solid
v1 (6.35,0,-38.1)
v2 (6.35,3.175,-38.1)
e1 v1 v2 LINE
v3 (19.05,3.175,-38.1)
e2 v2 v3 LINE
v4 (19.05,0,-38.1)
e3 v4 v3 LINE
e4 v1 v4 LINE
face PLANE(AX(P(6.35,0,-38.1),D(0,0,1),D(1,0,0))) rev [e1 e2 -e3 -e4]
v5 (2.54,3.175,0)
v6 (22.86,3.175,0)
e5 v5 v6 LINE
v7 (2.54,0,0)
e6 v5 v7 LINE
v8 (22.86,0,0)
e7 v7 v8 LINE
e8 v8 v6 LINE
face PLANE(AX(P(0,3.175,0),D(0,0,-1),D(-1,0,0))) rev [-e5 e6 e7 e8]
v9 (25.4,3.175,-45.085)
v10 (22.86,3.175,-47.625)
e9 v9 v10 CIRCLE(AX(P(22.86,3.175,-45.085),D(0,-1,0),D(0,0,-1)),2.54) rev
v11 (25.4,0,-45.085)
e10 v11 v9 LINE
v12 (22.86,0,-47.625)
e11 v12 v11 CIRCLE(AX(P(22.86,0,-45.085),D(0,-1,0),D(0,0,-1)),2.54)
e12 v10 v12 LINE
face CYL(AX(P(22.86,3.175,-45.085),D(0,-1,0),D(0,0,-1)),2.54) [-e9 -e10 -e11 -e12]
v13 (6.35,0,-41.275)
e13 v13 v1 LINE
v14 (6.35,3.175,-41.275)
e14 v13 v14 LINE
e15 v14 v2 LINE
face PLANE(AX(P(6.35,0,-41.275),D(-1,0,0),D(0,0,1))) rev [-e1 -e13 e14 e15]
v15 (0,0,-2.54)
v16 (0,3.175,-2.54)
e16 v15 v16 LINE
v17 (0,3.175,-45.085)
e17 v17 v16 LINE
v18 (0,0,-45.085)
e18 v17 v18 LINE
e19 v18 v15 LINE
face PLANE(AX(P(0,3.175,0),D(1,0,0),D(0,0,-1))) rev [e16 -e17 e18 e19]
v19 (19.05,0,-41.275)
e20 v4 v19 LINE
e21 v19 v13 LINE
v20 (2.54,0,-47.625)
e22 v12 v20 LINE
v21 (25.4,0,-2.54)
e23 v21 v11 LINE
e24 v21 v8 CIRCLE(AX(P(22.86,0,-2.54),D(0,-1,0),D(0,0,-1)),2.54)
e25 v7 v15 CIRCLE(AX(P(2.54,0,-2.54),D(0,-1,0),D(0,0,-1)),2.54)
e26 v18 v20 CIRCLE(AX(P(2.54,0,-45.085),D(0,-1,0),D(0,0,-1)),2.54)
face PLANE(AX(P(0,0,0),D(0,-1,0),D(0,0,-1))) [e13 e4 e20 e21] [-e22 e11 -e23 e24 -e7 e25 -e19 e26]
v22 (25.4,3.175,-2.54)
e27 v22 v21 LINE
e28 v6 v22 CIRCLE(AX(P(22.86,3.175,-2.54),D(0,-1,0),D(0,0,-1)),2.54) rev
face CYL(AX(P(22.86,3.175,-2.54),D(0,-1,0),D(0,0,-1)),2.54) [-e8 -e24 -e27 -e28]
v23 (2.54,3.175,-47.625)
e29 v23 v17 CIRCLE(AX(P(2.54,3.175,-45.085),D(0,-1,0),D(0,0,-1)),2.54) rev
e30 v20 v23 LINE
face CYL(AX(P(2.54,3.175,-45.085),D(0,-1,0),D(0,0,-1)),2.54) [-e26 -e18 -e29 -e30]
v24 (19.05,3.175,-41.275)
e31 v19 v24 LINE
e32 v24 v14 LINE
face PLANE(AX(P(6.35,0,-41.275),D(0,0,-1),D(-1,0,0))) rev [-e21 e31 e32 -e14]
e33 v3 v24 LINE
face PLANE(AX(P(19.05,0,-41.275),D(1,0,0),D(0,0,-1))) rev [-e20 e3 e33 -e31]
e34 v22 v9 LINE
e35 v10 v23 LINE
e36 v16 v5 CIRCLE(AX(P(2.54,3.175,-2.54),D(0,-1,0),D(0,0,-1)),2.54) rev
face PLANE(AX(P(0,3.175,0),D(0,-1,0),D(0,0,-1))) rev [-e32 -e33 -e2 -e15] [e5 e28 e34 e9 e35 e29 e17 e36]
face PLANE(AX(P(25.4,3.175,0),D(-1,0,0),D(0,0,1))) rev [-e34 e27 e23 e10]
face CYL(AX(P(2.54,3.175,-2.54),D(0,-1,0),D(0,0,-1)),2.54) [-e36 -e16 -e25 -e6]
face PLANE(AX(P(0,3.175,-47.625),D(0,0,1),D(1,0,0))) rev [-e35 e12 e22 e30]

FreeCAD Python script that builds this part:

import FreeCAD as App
import Part
import Sketcher

V = App.Vector
Q = App.Units.Quantity


def edges_at(feature, points):
    """Names of the edges that pass closest to the given points."""
    edges = feature.Shape.Edges
    near = lambda p: min(range(len(edges)), key=lambda i: edges[i].distToShape(Part.Vertex(*p))[0])
    return sorted({f"Edge{near(p) + 1}" for p in points})


def add_polygon(sketch, points):
    """Adds a closed chain of lines whose ends are joined by coincident constraints."""
    first, n = sketch.GeometryCount, len(points)
    for a, b in zip(points, points[1:] + points[:1]):
        sketch.addGeometry(Part.LineSegment(App.Vector(*a, 0), App.Vector(*b, 0)), False)
    for i in range(n):
        sketch.addConstraint(Sketcher.Constraint("Coincident", first + i, 2, first + (i + 1) % n, 1))

doc = App.newDocument("Part")
body = doc.addObject("PartDesign::Body", "Body")

# Sketch on XZ plane
sketch1 = doc.addObject("Sketcher::SketchObject", "Sketch")
body.addObject(sketch1)
sketch1.AttachmentSupport = (doc.XZ_Plane, [""])
sketch1.MapMode = "FlatFace"
add_polygon(sketch1, [(0, -47.625), (0, 0), (25.4, 0), (25.4, -47.625)])  # lines 0-3
sketch1.addConstraint(Sketcher.Constraint("Vertical", 0))
sketch1.addConstraint(Sketcher.Constraint("Horizontal", 1))
sketch1.addConstraint(Sketcher.Constraint("Vertical", 2))
sketch1.addConstraint(Sketcher.Constraint("Horizontal", 3))
sketch1.addConstraint(Sketcher.Constraint("Coincident", 0, 2, -1, 1))
sketch1.addConstraint(Sketcher.Constraint("DistanceX", 1, 1, 1, 2, Q("1 in")))
sketch1.addConstraint(Sketcher.Constraint("DistanceY", 0, 1, 0, 2, Q("1.875 in")))
pad1 = doc.addObject("PartDesign::Pad", "Pad")
body.addObject(pad1)
pad1.Profile = sketch1
pad1.Length = Q("0.125 in")
pad1.Reversed = True

# Sketch on XZ plane
sketch2 = doc.addObject("Sketcher::SketchObject", "Sketch001")
body.addObject(sketch2)
sketch2.AttachmentSupport = (doc.XZ_Plane, [""])
sketch2.MapMode = "FlatFace"
sketch2.AttachmentOffset = App.Placement(V(0, 0, -0.125 * 25.4), App.Rotation())
add_polygon(sketch2, [(6.35, -41.275), (6.35, -38.1), (19.05, -38.1), (19.05, -41.275)])  # lines 0-3
sketch2.addConstraint(Sketcher.Constraint("Vertical", 0))
sketch2.addConstraint(Sketcher.Constraint("Horizontal", 1))
sketch2.addConstraint(Sketcher.Constraint("Vertical", 2))
sketch2.addConstraint(Sketcher.Constraint("Horizontal", 3))
sketch2.addConstraint(Sketcher.Constraint("DistanceX", 1, 1, 1, 2, Q("0.5 in")))
sketch2.addConstraint(Sketcher.Constraint("DistanceY", 0, 2, -1, 1, Q("1.5 in")))
sketch2.addConstraint(Sketcher.Constraint("DistanceY", 0, 1, 0, 2, Q("0.125 in")))
sketch2.addConstraint(Sketcher.Constraint("DistanceX", -1, 1, 0, 2, Q("0.25 in")))
pocket1 = doc.addObject("PartDesign::Pocket", "Pocket")
body.addObject(pocket1)
pocket1.Profile = sketch2
pocket1.Type = "ThroughAll"
pocket1.Reversed = True
doc.recompute()

fillet = doc.addObject("PartDesign::Fillet", "Fillet")
body.addObject(fillet)
fillet.Base = (pocket1, edges_at(pocket1, [
    (0, 1.587, -47.625),
    (25.4, 1.587, -47.625),
    (25.4, 1.587, 0),
    (0, 1.587, 0),
]))
fillet.Radius = Q("0.1 in")

doc.recompute()
